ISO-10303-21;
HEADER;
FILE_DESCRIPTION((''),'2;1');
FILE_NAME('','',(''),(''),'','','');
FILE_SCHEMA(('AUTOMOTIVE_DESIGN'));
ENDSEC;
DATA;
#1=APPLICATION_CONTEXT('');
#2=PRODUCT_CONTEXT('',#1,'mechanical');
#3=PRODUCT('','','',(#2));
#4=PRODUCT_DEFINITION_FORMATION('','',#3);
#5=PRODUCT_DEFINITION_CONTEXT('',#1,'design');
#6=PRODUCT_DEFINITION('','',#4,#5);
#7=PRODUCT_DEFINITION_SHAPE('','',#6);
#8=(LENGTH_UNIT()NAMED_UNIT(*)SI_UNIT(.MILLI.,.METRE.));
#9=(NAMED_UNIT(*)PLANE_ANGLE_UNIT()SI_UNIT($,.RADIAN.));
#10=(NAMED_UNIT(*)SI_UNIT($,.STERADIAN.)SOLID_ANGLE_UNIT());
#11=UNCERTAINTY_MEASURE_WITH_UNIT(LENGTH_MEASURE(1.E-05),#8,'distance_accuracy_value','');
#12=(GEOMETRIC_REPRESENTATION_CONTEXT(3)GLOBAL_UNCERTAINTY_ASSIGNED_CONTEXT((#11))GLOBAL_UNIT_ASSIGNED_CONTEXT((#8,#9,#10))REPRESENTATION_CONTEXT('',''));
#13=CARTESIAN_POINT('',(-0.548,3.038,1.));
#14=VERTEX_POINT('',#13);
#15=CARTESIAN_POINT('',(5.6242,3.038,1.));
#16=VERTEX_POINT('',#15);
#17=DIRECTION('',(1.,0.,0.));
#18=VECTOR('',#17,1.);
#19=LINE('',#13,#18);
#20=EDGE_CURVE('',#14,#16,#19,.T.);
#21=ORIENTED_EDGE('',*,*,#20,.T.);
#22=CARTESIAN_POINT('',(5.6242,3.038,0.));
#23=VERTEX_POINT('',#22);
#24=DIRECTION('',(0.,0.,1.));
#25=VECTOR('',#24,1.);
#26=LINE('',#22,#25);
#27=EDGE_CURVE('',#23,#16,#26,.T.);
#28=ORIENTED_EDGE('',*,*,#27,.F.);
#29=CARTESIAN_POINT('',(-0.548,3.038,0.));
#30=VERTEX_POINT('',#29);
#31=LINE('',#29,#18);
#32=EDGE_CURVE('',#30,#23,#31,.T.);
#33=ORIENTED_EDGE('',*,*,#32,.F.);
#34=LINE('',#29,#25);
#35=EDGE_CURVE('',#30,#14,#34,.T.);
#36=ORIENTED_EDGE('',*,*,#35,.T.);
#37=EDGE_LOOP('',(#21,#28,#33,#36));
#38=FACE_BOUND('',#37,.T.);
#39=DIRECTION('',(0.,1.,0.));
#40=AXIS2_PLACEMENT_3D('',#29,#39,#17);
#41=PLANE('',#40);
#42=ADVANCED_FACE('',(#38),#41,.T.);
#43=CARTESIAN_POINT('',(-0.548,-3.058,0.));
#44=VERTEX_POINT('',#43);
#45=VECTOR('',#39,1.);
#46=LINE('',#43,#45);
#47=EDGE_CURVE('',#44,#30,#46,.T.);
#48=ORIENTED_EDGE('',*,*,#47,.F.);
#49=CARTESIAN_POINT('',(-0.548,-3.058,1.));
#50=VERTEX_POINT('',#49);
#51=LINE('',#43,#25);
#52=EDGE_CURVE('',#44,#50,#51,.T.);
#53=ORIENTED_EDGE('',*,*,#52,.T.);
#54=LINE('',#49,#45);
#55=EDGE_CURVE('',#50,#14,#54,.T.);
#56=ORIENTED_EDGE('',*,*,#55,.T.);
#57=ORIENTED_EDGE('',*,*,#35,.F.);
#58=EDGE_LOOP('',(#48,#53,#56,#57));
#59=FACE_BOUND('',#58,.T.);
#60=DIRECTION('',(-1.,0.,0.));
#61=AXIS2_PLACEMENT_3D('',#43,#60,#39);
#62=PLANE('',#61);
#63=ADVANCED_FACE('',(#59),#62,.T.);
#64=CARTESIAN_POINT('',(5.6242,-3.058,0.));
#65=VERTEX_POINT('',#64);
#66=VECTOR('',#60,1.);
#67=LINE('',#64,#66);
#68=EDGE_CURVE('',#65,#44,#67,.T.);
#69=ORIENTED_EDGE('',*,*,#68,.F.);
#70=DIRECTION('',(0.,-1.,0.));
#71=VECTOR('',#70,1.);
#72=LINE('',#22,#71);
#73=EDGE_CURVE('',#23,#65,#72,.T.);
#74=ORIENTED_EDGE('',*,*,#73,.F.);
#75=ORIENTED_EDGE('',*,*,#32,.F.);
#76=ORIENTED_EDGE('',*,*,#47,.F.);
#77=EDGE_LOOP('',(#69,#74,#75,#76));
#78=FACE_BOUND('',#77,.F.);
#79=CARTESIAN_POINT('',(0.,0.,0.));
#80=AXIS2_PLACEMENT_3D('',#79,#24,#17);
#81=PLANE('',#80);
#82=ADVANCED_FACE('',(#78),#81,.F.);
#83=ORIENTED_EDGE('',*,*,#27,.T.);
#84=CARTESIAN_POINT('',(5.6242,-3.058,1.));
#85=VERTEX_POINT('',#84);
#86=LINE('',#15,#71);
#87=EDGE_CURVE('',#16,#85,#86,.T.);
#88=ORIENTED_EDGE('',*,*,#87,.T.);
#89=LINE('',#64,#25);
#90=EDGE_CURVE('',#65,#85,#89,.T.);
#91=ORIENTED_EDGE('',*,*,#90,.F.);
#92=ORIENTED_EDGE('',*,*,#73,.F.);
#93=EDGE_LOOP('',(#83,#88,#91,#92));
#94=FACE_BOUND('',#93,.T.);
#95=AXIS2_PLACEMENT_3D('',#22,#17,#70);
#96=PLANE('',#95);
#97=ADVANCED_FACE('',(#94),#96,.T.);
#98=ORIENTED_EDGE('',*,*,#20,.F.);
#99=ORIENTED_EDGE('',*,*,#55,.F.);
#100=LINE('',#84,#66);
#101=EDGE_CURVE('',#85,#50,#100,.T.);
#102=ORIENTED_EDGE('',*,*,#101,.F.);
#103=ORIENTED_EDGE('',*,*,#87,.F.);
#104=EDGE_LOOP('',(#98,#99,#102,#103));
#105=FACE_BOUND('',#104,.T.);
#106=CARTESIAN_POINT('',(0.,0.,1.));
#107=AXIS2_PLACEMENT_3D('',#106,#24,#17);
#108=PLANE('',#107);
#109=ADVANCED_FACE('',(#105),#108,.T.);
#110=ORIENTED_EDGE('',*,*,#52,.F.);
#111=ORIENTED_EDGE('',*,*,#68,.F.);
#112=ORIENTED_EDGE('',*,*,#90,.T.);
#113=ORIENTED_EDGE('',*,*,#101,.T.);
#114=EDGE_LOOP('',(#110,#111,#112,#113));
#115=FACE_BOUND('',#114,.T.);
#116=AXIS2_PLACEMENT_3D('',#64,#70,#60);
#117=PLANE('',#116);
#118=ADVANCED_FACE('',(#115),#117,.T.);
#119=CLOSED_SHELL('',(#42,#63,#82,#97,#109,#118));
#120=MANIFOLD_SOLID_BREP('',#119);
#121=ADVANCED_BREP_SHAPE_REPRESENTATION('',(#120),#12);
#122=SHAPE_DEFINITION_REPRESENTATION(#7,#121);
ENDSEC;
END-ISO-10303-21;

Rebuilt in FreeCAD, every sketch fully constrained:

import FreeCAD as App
import Part
import Sketcher

V = App.Vector
Q = App.Units.Quantity

doc = App.newDocument("Part")
body = doc.addObject("PartDesign::Body", "Body")

# Sketch on XY plane
sketch1 = body.newObject("Sketcher::SketchObject", "Sketch")
sketch1.AttachmentSupport = (doc.getObject("XY_Plane"), [""])
sketch1.MapMode = "FlatFace"
sketch1.addGeometry([
    Part.LineSegment(V(6, 3, 0), V(-1, 3, 0)),
    Part.LineSegment(V(-1, 3, 0), V(-1, -3, 0)),
    Part.LineSegment(V(-1, -3, 0), V(6, -3, 0)),
    Part.LineSegment(V(6, -3, 0), V(6, 3, 0)),
], False)
sketch1.addConstraint([
    Sketcher.Constraint("Coincident", 0, 2, 1, 1),
    Sketcher.Constraint("Coincident", 1, 2, 2, 1),
    Sketcher.Constraint("Coincident", 2, 2, 3, 1),
    Sketcher.Constraint("Coincident", 3, 2, 0, 1),
    Sketcher.Constraint("Horizontal", 0),
    Sketcher.Constraint("Vertical", 1),
    Sketcher.Constraint("Horizontal", 2),
    Sketcher.Constraint("Vertical", 3),
    Sketcher.Constraint("DistanceY", 1, 2, 1, 1, Q("0.24 in")),
    Sketcher.Constraint("DistanceX", 0, 2, 0, 1, Q("0.243 in")),
    Sketcher.Constraint("DistanceY", -1, 1, 0, 2, Q("0.1196 in")),
    Sketcher.Constraint("DistanceX", 0, 2, -1, 1, 0.548),
])
pad1 = body.newObject("PartDesign::Pad", "Pad")
pad1.Profile = sketch1
pad1.Length = 1

doc.recompute()
